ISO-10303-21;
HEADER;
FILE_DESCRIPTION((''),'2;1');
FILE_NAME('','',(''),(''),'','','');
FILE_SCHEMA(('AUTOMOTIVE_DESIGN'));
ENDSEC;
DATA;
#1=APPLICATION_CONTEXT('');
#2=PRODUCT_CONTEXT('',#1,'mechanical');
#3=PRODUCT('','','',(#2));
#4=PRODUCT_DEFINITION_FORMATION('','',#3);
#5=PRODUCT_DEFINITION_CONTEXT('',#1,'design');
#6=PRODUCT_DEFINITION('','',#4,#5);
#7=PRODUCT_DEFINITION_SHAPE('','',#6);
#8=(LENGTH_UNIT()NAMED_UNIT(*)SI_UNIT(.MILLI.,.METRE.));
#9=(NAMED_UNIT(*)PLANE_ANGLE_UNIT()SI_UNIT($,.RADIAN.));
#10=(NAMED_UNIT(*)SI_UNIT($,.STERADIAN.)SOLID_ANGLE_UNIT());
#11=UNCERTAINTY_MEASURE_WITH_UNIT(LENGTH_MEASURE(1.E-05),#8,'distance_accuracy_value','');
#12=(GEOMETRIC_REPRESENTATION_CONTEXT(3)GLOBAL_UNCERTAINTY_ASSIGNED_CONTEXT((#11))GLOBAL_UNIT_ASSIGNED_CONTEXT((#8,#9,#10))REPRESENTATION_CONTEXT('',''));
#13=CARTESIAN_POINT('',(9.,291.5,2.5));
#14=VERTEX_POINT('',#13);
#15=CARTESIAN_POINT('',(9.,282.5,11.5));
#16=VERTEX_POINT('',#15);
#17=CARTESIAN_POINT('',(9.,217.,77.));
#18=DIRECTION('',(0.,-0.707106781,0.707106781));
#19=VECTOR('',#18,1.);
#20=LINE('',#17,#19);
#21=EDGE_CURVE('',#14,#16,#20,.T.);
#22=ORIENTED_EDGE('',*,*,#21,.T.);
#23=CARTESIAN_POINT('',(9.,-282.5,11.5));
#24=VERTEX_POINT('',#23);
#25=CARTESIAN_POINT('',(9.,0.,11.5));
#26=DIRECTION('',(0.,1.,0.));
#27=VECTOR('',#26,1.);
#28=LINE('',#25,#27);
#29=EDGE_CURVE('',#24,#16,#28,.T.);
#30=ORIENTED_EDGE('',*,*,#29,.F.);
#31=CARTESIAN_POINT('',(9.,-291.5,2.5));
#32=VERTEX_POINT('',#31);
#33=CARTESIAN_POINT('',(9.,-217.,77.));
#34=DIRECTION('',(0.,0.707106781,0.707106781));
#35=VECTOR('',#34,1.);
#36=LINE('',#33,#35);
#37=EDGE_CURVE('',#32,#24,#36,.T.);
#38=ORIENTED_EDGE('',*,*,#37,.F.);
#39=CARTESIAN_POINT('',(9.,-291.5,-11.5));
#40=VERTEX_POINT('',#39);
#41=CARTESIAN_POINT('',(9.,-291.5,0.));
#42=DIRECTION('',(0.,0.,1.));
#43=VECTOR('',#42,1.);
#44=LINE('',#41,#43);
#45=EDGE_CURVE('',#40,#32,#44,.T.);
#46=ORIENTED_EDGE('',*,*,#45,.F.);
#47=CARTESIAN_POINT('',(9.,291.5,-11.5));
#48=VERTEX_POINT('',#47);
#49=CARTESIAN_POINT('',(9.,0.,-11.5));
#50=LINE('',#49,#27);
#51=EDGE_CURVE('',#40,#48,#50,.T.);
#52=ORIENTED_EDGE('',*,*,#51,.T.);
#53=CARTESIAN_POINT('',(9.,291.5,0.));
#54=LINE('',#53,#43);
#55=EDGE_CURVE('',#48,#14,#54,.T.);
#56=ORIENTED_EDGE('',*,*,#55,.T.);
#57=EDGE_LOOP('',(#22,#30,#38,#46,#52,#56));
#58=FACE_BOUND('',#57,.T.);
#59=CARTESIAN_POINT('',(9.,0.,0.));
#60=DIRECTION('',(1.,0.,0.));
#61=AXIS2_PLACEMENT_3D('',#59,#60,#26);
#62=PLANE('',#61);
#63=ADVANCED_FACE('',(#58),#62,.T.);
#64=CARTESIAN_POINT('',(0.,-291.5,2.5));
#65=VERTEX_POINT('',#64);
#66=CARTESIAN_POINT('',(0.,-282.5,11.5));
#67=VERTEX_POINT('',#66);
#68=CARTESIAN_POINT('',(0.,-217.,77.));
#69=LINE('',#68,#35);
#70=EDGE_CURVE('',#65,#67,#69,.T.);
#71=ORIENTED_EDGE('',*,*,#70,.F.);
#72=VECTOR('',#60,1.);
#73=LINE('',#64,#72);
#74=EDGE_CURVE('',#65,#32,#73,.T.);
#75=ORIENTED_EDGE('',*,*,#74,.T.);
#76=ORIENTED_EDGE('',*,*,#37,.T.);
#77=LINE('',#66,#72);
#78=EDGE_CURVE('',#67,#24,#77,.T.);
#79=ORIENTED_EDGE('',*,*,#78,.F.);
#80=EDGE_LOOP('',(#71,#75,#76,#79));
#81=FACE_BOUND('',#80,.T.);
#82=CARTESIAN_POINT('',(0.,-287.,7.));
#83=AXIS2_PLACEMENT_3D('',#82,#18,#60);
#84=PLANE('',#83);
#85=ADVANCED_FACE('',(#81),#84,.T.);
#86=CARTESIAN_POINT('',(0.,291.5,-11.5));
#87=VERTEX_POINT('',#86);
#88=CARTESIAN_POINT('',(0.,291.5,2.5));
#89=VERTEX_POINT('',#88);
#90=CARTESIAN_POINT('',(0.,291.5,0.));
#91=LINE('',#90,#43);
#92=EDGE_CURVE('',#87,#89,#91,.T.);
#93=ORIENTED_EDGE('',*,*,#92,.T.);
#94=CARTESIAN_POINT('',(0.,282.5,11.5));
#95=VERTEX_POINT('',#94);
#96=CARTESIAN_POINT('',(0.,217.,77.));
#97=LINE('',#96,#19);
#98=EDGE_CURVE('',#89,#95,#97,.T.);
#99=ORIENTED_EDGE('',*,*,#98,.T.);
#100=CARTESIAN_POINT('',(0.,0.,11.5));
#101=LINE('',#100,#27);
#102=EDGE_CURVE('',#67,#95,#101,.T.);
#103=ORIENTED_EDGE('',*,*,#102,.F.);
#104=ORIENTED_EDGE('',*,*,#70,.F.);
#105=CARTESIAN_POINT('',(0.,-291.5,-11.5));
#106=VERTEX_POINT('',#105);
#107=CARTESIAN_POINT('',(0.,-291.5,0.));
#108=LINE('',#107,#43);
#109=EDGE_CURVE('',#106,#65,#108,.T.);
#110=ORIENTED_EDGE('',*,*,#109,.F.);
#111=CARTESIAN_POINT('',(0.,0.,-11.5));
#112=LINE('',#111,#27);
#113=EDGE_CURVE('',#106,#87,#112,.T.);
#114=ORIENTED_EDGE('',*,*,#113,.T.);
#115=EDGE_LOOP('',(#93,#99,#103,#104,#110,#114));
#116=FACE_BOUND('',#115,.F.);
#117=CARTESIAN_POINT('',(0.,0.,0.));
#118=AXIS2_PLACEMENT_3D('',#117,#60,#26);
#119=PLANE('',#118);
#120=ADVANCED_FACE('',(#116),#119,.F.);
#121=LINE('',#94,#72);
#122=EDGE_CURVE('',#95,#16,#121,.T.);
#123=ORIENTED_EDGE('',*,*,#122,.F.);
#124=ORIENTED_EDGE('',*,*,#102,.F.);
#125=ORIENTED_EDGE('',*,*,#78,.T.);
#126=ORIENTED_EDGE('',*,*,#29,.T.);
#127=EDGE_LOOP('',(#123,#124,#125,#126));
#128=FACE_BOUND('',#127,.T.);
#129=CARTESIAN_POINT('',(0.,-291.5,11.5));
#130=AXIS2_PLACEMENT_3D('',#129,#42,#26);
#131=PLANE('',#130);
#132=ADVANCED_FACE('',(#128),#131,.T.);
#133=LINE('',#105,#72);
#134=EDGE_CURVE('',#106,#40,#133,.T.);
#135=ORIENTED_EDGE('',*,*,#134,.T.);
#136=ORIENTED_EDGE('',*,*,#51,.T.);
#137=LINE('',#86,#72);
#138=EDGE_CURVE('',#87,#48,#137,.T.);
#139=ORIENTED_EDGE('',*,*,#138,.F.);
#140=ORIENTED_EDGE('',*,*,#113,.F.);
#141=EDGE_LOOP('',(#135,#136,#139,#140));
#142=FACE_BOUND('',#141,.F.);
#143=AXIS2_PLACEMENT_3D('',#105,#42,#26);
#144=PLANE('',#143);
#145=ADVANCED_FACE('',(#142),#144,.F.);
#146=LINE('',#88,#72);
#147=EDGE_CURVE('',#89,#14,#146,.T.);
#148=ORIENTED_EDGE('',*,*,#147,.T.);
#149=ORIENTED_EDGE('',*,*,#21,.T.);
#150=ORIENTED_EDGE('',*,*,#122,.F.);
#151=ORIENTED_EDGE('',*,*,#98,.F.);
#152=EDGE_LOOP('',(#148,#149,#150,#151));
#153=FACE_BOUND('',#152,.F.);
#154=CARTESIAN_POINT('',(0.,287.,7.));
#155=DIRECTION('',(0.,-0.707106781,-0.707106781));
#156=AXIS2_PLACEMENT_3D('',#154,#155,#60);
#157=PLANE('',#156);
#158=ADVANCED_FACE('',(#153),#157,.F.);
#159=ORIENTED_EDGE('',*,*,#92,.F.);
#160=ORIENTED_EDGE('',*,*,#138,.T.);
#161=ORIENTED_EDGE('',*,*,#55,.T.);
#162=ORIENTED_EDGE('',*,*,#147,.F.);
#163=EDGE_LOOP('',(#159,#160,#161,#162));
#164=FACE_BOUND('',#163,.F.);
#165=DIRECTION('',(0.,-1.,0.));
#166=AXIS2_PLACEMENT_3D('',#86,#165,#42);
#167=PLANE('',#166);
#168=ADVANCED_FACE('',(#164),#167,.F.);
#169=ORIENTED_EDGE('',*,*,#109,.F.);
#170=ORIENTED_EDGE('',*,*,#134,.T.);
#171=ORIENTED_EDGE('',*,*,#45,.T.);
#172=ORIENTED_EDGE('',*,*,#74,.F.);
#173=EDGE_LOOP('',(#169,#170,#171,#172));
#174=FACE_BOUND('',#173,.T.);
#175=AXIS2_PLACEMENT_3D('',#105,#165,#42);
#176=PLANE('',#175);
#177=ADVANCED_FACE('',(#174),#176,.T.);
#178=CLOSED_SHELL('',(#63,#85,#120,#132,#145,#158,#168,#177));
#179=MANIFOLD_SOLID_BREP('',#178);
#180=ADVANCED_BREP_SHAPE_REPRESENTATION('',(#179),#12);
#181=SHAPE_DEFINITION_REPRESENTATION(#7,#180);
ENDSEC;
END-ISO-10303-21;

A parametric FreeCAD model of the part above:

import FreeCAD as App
import Part
import Sketcher
from FreeCAD import Vector
Q = App.Units.Quantity


def edges_at(feature, points):
    """Names of the edges that pass closest to the given points."""
    edges = feature.Shape.Edges
    near = lambda p: min(range(len(edges)), key=lambda i: edges[i].distToShape(Part.Vertex(*p))[0])
    return sorted({f"Edge{near(p) + 1}" for p in points})


def add_polygon(sketch, points):
    """Adds a closed chain of lines whose ends are joined by coincident constraints."""
    first, n = sketch.GeometryCount, len(points)
    for a, b in zip(points, points[1:] + points[:1]):
        sketch.addGeometry(Part.LineSegment(App.Vector(*a, 0), App.Vector(*b, 0)), False)
    for i in range(n):
        sketch.addConstraint(Sketcher.Constraint("Coincident", first + i, 2, first + (i + 1) % n, 1))

doc = App.newDocument("Part")
body = doc.addObject("PartDesign::Body", "Body")

# Sketch on YZ plane
sketch1 = doc.addObject("Sketcher::SketchObject", "Sketch")
body.addObject(sketch1)
sketch1.AttachmentSupport = (doc.YZ_Plane, [""])
sketch1.MapMode = "FlatFace"
add_polygon(sketch1, [(-292, 12), (-292, -12), (292, -12), (292, 12)])  # lines 0-3
sketch1.addConstraint(Sketcher.Constraint("Vertical", 0))
sketch1.addConstraint(Sketcher.Constraint("Horizontal", 1))
sketch1.addConstraint(Sketcher.Constraint("Vertical", 2))
sketch1.addConstraint(Sketcher.Constraint("Horizontal", 3))
sketch1.addConstraint(Sketcher.Constraint("Symmetric", 0, 2, 2, 2, -1, 1))
sketch1.addConstraint(Sketcher.Constraint("DistanceX", 1, 1, 1, 2, Q("583 mm")))
sketch1.addConstraint(Sketcher.Constraint("DistanceY", 0, 2, 0, 1, Q("23 mm")))
pad1 = doc.addObject("PartDesign::Pad", "Pad")
body.addObject(pad1)
pad1.Profile = sketch1
pad1.Length = 9
doc.recompute()

chamfer = doc.addObject("PartDesign::Chamfer", "Chamfer")
body.addObject(chamfer)
chamfer.Base = (pad1, edges_at(pad1, [(4.5, 291.5, 11.5), (4.5, -291.5, 11.5)]))
chamfer.Size = 9

doc.recompute()
